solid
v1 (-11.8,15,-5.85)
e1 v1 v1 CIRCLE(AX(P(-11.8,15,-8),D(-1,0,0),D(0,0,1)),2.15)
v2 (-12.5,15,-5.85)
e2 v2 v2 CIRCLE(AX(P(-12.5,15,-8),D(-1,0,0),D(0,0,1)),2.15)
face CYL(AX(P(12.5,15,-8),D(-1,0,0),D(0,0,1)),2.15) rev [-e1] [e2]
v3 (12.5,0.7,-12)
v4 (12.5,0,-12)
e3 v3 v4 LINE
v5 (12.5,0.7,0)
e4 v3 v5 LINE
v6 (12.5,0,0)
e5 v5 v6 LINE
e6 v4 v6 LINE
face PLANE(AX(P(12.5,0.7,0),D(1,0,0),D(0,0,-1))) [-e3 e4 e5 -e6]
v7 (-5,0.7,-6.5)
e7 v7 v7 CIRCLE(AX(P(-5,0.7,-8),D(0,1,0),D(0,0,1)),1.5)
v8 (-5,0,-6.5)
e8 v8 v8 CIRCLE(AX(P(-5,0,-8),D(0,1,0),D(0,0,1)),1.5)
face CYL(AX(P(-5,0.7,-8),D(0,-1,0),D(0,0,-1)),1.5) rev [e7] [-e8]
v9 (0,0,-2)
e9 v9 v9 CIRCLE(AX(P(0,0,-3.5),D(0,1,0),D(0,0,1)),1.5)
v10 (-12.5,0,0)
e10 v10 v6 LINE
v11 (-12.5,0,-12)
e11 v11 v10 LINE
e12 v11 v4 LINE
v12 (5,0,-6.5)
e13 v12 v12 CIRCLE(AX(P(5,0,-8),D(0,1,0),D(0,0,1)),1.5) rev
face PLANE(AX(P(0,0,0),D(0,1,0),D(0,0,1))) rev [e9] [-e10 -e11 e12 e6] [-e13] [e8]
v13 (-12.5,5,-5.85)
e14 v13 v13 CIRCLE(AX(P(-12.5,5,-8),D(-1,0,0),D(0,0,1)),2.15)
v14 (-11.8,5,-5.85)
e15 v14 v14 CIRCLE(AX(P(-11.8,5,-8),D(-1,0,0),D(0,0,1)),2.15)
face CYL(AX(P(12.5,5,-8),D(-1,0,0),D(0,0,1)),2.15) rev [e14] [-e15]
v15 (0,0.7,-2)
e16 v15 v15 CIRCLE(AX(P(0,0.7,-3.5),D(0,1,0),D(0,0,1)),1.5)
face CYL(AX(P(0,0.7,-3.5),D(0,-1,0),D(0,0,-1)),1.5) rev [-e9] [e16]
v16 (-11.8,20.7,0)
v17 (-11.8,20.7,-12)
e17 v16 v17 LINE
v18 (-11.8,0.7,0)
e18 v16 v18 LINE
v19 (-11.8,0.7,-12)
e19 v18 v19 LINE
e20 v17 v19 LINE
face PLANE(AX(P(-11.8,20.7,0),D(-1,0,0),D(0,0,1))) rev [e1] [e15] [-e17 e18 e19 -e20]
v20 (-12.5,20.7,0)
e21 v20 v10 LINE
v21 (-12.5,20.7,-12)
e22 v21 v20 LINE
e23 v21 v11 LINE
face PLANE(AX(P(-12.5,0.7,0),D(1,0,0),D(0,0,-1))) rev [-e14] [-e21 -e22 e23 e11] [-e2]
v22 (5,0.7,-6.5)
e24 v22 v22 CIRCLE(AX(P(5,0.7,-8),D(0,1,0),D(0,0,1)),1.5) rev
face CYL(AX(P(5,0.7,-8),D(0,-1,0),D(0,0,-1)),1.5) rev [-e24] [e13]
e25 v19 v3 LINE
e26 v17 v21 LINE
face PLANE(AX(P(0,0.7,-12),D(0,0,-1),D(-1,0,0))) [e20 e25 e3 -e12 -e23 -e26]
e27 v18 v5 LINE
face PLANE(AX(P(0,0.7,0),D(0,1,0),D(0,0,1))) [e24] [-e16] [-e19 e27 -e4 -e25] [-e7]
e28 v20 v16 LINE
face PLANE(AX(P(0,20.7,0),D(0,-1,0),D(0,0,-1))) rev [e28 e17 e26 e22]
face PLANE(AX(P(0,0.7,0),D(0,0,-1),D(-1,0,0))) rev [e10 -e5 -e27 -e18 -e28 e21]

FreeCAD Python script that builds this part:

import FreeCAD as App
import Part
import Sketcher
Q = App.Units.Quantity


def add_polygon(sketch, points):
    """Adds a closed chain of lines whose ends are joined by coincident constraints."""
    first, n = sketch.GeometryCount, len(points)
    for a, b in zip(points, points[1:] + points[:1]):
        sketch.addGeometry(Part.LineSegment(App.Vector(*a, 0), App.Vector(*b, 0)), False)
    for i in range(n):
        sketch.addConstraint(Sketcher.Constraint("Coincident", first + i, 2, first + (i + 1) % n, 1))

doc = App.newDocument("Part")
body = doc.addObject("PartDesign::Body", "Body")

sketch1 = body.newObject("Sketcher::SketchObject", "Sketch")
sketch1.AttachmentSupport = (doc.getObject("XZ_Plane"), [""])
sketch1.MapMode = "FlatFace"
add_polygon(sketch1, [(-12.5, -12), (-12.5, 0), (12.5, 0), (12.5, -12)])
sketch1.addGeometry(Part.Circle(App.Vector(0, -3.5, 0), App.Vector(0, 0, 1), 1.5), False)
sketch1.addGeometry(Part.Circle(App.Vector(-5, -8, 0), App.Vector(0, 0, 1), 1.5), False)
sketch1.addGeometry(Part.Circle(App.Vector(5, -8, 0), App.Vector(0, 0, 1), 1.5), False)
sketch1.addConstraint([
    Sketcher.Constraint("Vertical", 0),
    Sketcher.Constraint("Horizontal", 1),
    Sketcher.Constraint("Vertical", 2),
    Sketcher.Constraint("Horizontal", 3),
    Sketcher.Constraint("Equal", 4, 5),
    Sketcher.Constraint("Equal", 5, 6),
    Sketcher.Constraint("Symmetric", 0, 2, 1, 2, -1, 1),
    Sketcher.Constraint("Symmetric", 5, 3, 6, 3, -2),
    Sketcher.Constraint("PointOnObject", 4, 3, -2),
    Sketcher.Constraint("Diameter", 4, Q("3 mm")),
    Sketcher.Constraint("DistanceX", 1, 1, 1, 2, Q("25 mm")),
    Sketcher.Constraint("DistanceY", 0, 1, 0, 2, Q("12 mm")),
    Sketcher.Constraint("DistanceX", 5, 3, -1, 1, Q("5 mm")),
    Sketcher.Constraint("DistanceY", 5, 3, -1, 1, Q("8 mm")),
    Sketcher.Constraint("DistanceY", 4, 3, -1, 1, Q("3.5 mm")),
])
pad1 = body.newObject("PartDesign::Pad", "Pad")
pad1.Profile = sketch1
pad1.Length = 0.7
pad1.Reversed = True

sketch2 = body.newObject("Sketcher::SketchObject", "Sketch001")
sketch2.AttachmentSupport = (doc.getObject("XZ_Plane"), [""])
sketch2.MapMode = "FlatFace"
sketch2.AttachmentOffset = App.Placement(App.Vector(0, 0, -0.7), App.Rotation())
add_polygon(sketch2, [(-12.5, -12), (-12.5, 0), (-11.8, 0), (-11.8, -12)])
sketch2.addConstraint([
    Sketcher.Constraint("Vertical", 0),
    Sketcher.Constraint("Horizontal", 1),
    Sketcher.Constraint("Vertical", 2),
    Sketcher.Constraint("Horizontal", 3),
    Sketcher.Constraint("PointOnObject", 0, 2, -1),
    Sketcher.Constraint("DistanceY", 0, 1, 0, 2, Q("12 mm")),
    Sketcher.Constraint("DistanceX", 1, 1, 1, 2, Q("0.7 mm")),
    Sketcher.Constraint("DistanceX", 0, 2, -1, 1, Q("12.5 mm")),
])
pad2 = body.newObject("PartDesign::Pad", "Pad001")
pad2.Profile = sketch2
pad2.Length = 20
pad2.Reversed = True

sketch3 = body.newObject("Sketcher::SketchObject", "Sketch002")
sketch3.AttachmentSupport = (doc.getObject("YZ_Plane"), [""])
sketch3.MapMode = "FlatFace"
sketch3.AttachmentOffset = App.Placement(App.Vector(0, 0, -12.5), App.Rotation())
sketch3.addGeometry([
    Part.Circle(App.Vector(5, -8, 0), App.Vector(0, 0, 1), 2.1),
    Part.Circle(App.Vector(15, -8, 0), App.Vector(0, 0, 1), 2.1),
], False)
sketch3.addConstraint([
    Sketcher.Constraint("Equal", 0, 1),
    Sketcher.Constraint("Horizontal", 0, 3, 1, 3),
    Sketcher.Constraint("Diameter", 0, Q("4.3 mm")),
    Sketcher.Constraint("DistanceX", -1, 1, 0, 3, Q("5 mm")),
    Sketcher.Constraint("DistanceY", 0, 3, -1, 1, Q("8 mm")),
    Sketcher.Constraint("DistanceX", -1, 1, 1, 3, Q("15 mm")),
])
pocket1 = body.newObject("PartDesign::Pocket", "Pocket")
pocket1.Profile = sketch3
pocket1.Type = "ThroughAll"
pocket1.Reversed = True

doc.recompute()
